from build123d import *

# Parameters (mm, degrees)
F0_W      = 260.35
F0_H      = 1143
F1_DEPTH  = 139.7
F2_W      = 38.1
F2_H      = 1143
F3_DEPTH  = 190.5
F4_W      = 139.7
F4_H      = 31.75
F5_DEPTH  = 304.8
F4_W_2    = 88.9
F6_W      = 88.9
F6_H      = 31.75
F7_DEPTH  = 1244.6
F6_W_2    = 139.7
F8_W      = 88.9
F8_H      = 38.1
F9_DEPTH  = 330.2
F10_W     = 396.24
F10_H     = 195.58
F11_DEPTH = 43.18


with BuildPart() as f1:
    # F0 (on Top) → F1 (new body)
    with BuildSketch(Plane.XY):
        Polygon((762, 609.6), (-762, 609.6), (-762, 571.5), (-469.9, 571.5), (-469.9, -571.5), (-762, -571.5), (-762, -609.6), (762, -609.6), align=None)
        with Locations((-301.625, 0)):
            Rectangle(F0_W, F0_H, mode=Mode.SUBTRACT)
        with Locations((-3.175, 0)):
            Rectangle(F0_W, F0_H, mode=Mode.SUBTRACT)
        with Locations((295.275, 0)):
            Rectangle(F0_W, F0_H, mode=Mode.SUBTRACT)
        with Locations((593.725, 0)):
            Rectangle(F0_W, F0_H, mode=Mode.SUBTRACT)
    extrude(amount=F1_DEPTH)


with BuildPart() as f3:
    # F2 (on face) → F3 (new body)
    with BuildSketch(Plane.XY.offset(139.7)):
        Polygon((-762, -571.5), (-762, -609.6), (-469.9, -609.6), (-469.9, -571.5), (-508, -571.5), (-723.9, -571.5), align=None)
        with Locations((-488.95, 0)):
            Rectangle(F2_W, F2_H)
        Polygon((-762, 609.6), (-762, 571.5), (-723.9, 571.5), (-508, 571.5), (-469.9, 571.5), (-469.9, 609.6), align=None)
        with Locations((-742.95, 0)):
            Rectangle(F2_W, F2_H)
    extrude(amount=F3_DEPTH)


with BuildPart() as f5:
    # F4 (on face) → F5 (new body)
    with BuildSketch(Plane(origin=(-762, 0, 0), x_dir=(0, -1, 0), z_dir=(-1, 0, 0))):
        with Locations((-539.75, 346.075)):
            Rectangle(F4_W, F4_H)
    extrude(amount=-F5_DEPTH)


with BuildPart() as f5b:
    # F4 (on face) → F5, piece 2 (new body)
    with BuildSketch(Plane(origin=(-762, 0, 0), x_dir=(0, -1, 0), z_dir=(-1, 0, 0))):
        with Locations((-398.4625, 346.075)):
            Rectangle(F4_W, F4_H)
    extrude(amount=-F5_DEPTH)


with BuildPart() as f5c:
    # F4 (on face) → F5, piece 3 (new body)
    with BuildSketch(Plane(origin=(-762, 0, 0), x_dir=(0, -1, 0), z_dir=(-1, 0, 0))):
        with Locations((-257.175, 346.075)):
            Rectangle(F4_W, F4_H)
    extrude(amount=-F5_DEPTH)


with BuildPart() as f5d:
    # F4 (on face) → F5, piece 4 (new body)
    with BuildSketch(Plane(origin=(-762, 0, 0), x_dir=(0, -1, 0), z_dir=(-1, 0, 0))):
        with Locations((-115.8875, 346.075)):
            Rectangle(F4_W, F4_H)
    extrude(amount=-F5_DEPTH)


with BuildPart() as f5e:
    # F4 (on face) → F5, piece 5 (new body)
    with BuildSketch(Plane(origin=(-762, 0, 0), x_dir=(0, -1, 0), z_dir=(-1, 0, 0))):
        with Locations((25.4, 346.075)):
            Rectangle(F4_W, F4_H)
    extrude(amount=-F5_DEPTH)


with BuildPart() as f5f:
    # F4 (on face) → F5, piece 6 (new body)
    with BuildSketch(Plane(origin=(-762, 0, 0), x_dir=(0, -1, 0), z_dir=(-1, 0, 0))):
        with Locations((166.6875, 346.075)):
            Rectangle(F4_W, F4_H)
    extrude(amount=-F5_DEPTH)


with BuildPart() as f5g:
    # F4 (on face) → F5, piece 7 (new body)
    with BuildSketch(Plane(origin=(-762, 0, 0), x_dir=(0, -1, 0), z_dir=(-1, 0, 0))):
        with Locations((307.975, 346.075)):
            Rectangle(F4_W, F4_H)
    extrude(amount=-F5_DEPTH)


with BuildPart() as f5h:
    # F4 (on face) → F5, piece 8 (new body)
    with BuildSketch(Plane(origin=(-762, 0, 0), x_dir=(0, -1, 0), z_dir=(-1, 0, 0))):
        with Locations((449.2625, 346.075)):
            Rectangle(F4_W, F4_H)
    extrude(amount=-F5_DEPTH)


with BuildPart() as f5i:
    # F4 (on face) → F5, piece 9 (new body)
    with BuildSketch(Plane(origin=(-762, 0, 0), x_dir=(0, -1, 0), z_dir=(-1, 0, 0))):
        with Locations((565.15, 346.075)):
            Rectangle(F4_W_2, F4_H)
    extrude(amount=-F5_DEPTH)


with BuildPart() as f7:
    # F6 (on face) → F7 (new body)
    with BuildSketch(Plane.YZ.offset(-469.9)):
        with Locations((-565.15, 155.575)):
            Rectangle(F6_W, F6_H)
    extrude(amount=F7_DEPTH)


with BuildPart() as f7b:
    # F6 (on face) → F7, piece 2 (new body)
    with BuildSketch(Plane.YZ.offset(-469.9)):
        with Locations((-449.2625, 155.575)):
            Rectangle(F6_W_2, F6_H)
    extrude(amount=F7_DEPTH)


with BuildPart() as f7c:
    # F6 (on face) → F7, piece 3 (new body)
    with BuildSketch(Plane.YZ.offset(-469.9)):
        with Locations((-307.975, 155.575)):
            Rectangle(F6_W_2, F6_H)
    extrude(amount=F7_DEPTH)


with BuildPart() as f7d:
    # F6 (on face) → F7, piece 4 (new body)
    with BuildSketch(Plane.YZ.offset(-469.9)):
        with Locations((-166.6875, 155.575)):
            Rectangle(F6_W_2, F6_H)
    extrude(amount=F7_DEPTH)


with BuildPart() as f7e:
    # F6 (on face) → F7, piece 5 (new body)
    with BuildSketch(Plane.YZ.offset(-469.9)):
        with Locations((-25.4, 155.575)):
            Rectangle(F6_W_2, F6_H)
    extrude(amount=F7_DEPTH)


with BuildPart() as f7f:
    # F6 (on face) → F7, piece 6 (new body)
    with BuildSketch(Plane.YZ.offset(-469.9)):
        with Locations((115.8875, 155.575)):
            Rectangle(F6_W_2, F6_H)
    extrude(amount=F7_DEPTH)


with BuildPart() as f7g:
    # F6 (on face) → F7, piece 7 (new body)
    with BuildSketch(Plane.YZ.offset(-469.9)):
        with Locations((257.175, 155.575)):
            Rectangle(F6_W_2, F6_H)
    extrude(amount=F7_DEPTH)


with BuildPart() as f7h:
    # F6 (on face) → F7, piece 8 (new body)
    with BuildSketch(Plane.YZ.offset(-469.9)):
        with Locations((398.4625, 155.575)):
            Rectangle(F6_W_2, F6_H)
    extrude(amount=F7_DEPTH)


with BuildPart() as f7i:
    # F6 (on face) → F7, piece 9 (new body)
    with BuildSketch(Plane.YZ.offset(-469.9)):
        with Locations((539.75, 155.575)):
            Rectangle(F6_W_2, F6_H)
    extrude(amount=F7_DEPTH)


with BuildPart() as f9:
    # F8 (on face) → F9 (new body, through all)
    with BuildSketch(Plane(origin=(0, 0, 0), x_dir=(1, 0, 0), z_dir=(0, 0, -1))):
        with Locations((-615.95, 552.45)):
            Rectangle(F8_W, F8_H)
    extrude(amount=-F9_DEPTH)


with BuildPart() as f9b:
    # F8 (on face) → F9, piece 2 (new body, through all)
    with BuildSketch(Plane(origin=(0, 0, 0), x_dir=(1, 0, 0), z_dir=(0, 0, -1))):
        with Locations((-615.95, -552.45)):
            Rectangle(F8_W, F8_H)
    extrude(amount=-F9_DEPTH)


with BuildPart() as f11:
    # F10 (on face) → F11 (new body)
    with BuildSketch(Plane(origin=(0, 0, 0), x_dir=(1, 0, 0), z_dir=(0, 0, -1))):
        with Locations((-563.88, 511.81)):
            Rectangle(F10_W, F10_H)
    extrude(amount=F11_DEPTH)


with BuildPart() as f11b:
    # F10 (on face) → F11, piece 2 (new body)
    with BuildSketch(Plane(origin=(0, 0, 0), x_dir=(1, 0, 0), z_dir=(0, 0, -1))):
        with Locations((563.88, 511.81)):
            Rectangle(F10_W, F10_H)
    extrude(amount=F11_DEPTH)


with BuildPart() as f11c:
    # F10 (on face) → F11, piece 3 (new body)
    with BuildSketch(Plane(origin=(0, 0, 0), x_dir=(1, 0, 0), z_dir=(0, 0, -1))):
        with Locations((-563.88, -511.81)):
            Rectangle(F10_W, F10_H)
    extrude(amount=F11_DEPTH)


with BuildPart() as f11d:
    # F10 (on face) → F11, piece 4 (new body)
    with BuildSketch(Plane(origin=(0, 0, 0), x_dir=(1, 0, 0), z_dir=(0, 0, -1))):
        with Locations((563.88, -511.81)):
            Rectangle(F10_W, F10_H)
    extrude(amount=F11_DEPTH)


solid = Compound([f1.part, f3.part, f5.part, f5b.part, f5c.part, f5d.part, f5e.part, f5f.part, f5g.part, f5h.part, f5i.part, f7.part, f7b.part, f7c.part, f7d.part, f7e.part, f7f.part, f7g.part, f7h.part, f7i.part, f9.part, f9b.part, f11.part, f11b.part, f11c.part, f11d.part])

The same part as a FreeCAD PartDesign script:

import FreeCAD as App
import Part
import Sketcher
Q = App.Units.Quantity


def add_polygon(sketch, points):
    """Adds a closed chain of lines whose ends are joined by coincident constraints."""
    first, n = sketch.GeometryCount, len(points)
    for a, b in zip(points, points[1:] + points[:1]):
        sketch.addGeometry(Part.LineSegment(App.Vector(*a, 0), App.Vector(*b, 0)), False)
    for i in range(n):
        sketch.addConstraint(Sketcher.Constraint("Coincident", first + i, 2, first + (i + 1) % n, 1))

doc = App.newDocument("Part")
body = doc.addObject("PartDesign::Body", "Body")

# Sketch on XY plane
sketch1 = doc.addObject("Sketcher::SketchObject", "Sketch")
body.addObject(sketch1)
sketch1.AttachmentSupport = (doc.XY_Plane, [""])
sketch1.MapMode = "FlatFace"
add_polygon(sketch1, [(762, 610), (-762, 610), (-762, 572), (-470, 572), (-470, -572), (-762, -572), (-762, -610), (762, -610)])  # lines 0-7
add_polygon(sketch1, [(-171, -572), (-432, -572), (-432, 572), (-171, 572)])  # lines 8-11
add_polygon(sketch1, [(127, -572), (-133, -572), (-133, 572), (127, 572)])  # lines 12-15
add_polygon(sketch1, [(425, -572), (165, -572), (165, 572), (425, 572)])  # lines 16-19
add_polygon(sketch1, [(724, -572), (464, -572), (464, 572), (724, 572)])  # lines 20-23
sketch1.addConstraint(Sketcher.Constraint("Horizontal", 0))
sketch1.addConstraint(Sketcher.Constraint("Vertical", 1))
sketch1.addConstraint(Sketcher.Constraint("Horizontal", 2))
sketch1.addConstraint(Sketcher.Constraint("Vertical", 3))
sketch1.addConstraint(Sketcher.Constraint("Horizontal", 4))
sketch1.addConstraint(Sketcher.Constraint("Vertical", 5))
sketch1.addConstraint(Sketcher.Constraint("Horizontal", 6))
sketch1.addConstraint(Sketcher.Constraint("Vertical", 7))
sketch1.addConstraint(Sketcher.Constraint("Horizontal", 8))
sketch1.addConstraint(Sketcher.Constraint("Vertical", 9))
sketch1.addConstraint(Sketcher.Constraint("Horizontal", 10))
sketch1.addConstraint(Sketcher.Constraint("Vertical", 11))
sketch1.addConstraint(Sketcher.Constraint("Horizontal", 12))
sketch1.addConstraint(Sketcher.Constraint("Vertical", 13))
sketch1.addConstraint(Sketcher.Constraint("Horizontal", 14))
sketch1.addConstraint(Sketcher.Constraint("Vertical", 15))
sketch1.addConstraint(Sketcher.Constraint("Horizontal", 16))
sketch1.addConstraint(Sketcher.Constraint("Vertical", 17))
sketch1.addConstraint(Sketcher.Constraint("Horizontal", 18))
sketch1.addConstraint(Sketcher.Constraint("Vertical", 19))
sketch1.addConstraint(Sketcher.Constraint("Horizontal", 20))
sketch1.addConstraint(Sketcher.Constraint("Vertical", 21))
sketch1.addConstraint(Sketcher.Constraint("Horizontal", 22))
sketch1.addConstraint(Sketcher.Constraint("Vertical", 23))
sketch1.addConstraint(Sketcher.Constraint("Symmetric", 0, 2, 6, 2, -1, 1))
sketch1.addConstraint(Sketcher.Constraint("Symmetric", 1, 2, 4, 2, -1))
sketch1.addConstraint(Sketcher.Constraint("Horizontal", 4, 2, 8, 2))
sketch1.addConstraint(Sketcher.Constraint("Horizontal", 2, 2, 9, 2))
sketch1.addConstraint(Sketcher.Constraint("Horizontal", 11, 2, 12, 2))
sketch1.addConstraint(Sketcher.Constraint("Horizontal", 10, 2, 13, 2))
sketch1.addConstraint(Sketcher.Constraint("Horizontal", 15, 2, 16, 2))
sketch1.addConstraint(Sketcher.Constraint("Horizontal", 14, 2, 17, 2))
sketch1.addConstraint(Sketcher.Constraint("Horizontal", 19, 2, 20, 2))
sketch1.addConstraint(Sketcher.Constraint("Horizontal", 18, 2, 21, 2))
sketch1.addConstraint(Sketcher.Constraint("Equal", 10, 12))
sketch1.addConstraint(Sketcher.Constraint("Equal", 14, 16))
sketch1.addConstraint(Sketcher.Constraint("Equal", 18, 20))
sketch1.addConstraint(Sketcher.Constraint("DistanceX", 0, 2, 0, 1, Q("60 in")))
sketch1.addConstraint(Sketcher.Constraint("DistanceY", 3, 2, 3, 1, Q("45 in")))
sketch1.addConstraint(Sketcher.Constraint("DistanceY", 7, 1, 7, 2, Q("48 in")))
sketch1.addConstraint(Sketcher.Constraint("DistanceX", 2, 1, 2, 2, Q("11.5 in")))
sketch1.addConstraint(Sketcher.Constraint("DistanceX", 8, 2, -1, 1, Q("17 in")))
sketch1.addConstraint(Sketcher.Constraint("DistanceX", -1, 1, 14, 2, Q("5 in")))
sketch1.addConstraint(Sketcher.Constraint("DistanceX", 13, 2, 18, 2, Q("22 in")))
sketch1.addConstraint(Sketcher.Constraint("DistanceX", 17, 2, 22, 2, Q("22 in")))
sketch1.addConstraint(Sketcher.Constraint("DistanceX", 8, 2, 8, 1, Q("10.25 in")))
pad1 = doc.addObject("PartDesign::Pad", "Pad")
body.addObject(pad1)
pad1.Profile = sketch1
pad1.Length = Q("5.5 in")
body2 = doc.addObject("PartDesign::Body", "Body001")

# Sketch on XY plane
sketch2 = doc.addObject("Sketcher::SketchObject", "Sketch001")
body2.addObject(sketch2)
sketch2.AttachmentSupport = (doc.getObject("XY_Plane001"), [""])
sketch2.MapMode = "FlatFace"
sketch2.AttachmentOffset = App.Placement(App.Vector(0, 0, 5.5 * 25.4), App.Rotation())
add_polygon(sketch2, [(-762, -610), (-470, -610), (-470, 610), (-762, 610)])  # lines 0-3
add_polygon(sketch2, [(-724, -572), (-724, 572), (-508, 572), (-508, -572)])  # lines 4-7
sketch2.addConstraint(Sketcher.Constraint("Horizontal", 0))
sketch2.addConstraint(Sketcher.Constraint("Vertical", 1))
sketch2.addConstraint(Sketcher.Constraint("Horizontal", 2))
sketch2.addConstraint(Sketcher.Constraint("Vertical", 3))
sketch2.addConstraint(Sketcher.Constraint("Vertical", 4))
sketch2.addConstraint(Sketcher.Constraint("Horizontal", 5))
sketch2.addConstraint(Sketcher.Constraint("Vertical", 6))
sketch2.addConstraint(Sketcher.Constraint("Horizontal", 7))
sketch2.addConstraint(Sketcher.Constraint("DistanceY", 1, 1, 1, 2, Q("48 in")))
sketch2.addConstraint(Sketcher.Constraint("DistanceY", 4, 1, 4, 2, Q("45 in")))
sketch2.addConstraint(Sketcher.Constraint("DistanceX", 0, 1, 0, 2, Q("11.5 in")))
sketch2.addConstraint(Sketcher.Constraint("DistanceX", 5, 1, 5, 2, Q("8.5 in")))
sketch2.addConstraint(Sketcher.Constraint("DistanceY", 0, 2, -1, 1, Q("24 in")))
sketch2.addConstraint(Sketcher.Constraint("DistanceX", 2, 2, -1, 1, Q("30 in")))
sketch2.addConstraint(Sketcher.Constraint("DistanceX", 5, 2, -1, 1, Q("20 in")))
sketch2.addConstraint(Sketcher.Constraint("DistanceY", -1, 1, 4, 2, Q("22.5 in")))
pad2 = doc.addObject("PartDesign::Pad", "Pad001")
body2.addObject(pad2)
pad2.Profile = sketch2
pad2.Length = Q("7.5 in")
body3 = doc.addObject("PartDesign::Body", "Body002")

# Sketch on YZ plane
sketch3 = doc.addObject("Sketcher::SketchObject", "Sketch002")
body3.addObject(sketch3)
sketch3.AttachmentSupport = (doc.getObject("YZ_Plane002"), [""])
sketch3.MapMode = "FlatFace"
sketch3.AttachmentOffset = App.Placement(App.Vector(0, 0, -30 * 25.4), App.Rotation())
add_polygon(sketch3, [(610, 362), (610, 330), (470, 330), (470, 362)])  # lines 0-3
sketch3.addConstraint(Sketcher.Constraint("Vertical", 0))
sketch3.addConstraint(Sketcher.Constraint("Horizontal", 1))
sketch3.addConstraint(Sketcher.Constraint("Vertical", 2))
sketch3.addConstraint(Sketcher.Constraint("Horizontal", 3))
sketch3.addConstraint(Sketcher.Constraint("DistanceX", 1, 2, 1, 1, Q("5.5 in")))
sketch3.addConstraint(Sketcher.Constraint("DistanceX", -1, 1, 0, 2, Q("24 in")))
sketch3.addConstraint(Sketcher.Constraint("DistanceY", -1, 1, 0, 2, Q("13 in")))
sketch3.addConstraint(Sketcher.Constraint("DistanceY", 0, 2, 0, 1, Q("1.25 in")))
pad3 = doc.addObject("PartDesign::Pad", "Pad002")
body3.addObject(pad3)
pad3.Profile = sketch3
pad3.Length = Q("12 in")
body4 = doc.addObject("PartDesign::Body", "Body003")

# Sketch on YZ plane
sketch4 = doc.addObject("Sketcher::SketchObject", "Sketch003")
body4.addObject(sketch4)
sketch4.AttachmentSupport = (doc.getObject("YZ_Plane003"), [""])
sketch4.MapMode = "FlatFace"
sketch4.AttachmentOffset = App.Placement(App.Vector(0, 0, -30 * 25.4), App.Rotation())
add_polygon(sketch4, [(468, 362), (468, 330), (329, 330), (329, 362)])  # lines 0-3
sketch4.addConstraint(Sketcher.Constraint("Vertical", 0))
sketch4.addConstraint(Sketcher.Constraint("Horizontal", 1))
sketch4.addConstraint(Sketcher.Constraint("Vertical", 2))
sketch4.addConstraint(Sketcher.Constraint("Horizontal", 3))
sketch4.addConstraint(Sketcher.Constraint("DistanceX", 1, 2, 1, 1, Q("5.5 in")))
sketch4.addConstraint(Sketcher.Constraint("DistanceY", -1, 1, 0, 2, Q("13 in")))
sketch4.addConstraint(Sketcher.Constraint("DistanceY", 0, 2, 0, 1, Q("1.25 in")))
sketch4.addConstraint(Sketcher.Constraint("DistanceX", -1, 1, 0, 2, Q("18.4375 in")))
pad4 = doc.addObject("PartDesign::Pad", "Pad003")
body4.addObject(pad4)
pad4.Profile = sketch4
pad4.Length = Q("12 in")
body5 = doc.addObject("PartDesign::Body", "Body004")

# Sketch on YZ plane
sketch5 = doc.addObject("Sketcher::SketchObject", "Sketch004")
body5.addObject(sketch5)
sketch5.AttachmentSupport = (doc.getObject("YZ_Plane004"), [""])
sketch5.MapMode = "FlatFace"
sketch5.AttachmentOffset = App.Placement(App.Vector(0, 0, -30 * 25.4), App.Rotation())
add_polygon(sketch5, [(327, 362), (327, 330), (187, 330), (187, 362)])  # lines 0-3
sketch5.addConstraint(Sketcher.Constraint("Vertical", 0))
sketch5.addConstraint(Sketcher.Constraint("Horizontal", 1))
sketch5.addConstraint(Sketcher.Constraint("Vertical", 2))
sketch5.addConstraint(Sketcher.Constraint("Horizontal", 3))
sketch5.addConstraint(Sketcher.Constraint("DistanceX", 1, 2, 1, 1, Q("5.5 in")))
sketch5.addConstraint(Sketcher.Constraint("DistanceY", -1, 1, 0, 2, Q("13 in")))
sketch5.addConstraint(Sketcher.Constraint("DistanceY", 0, 2, 0, 1, Q("1.25 in")))
sketch5.addConstraint(Sketcher.Constraint("DistanceX", -1, 1, 0, 2, Q("12.875 in")))
pad5 = doc.addObject("PartDesign::Pad", "Pad004")
body5.addObject(pad5)
pad5.Profile = sketch5
pad5.Length = Q("12 in")
body6 = doc.addObject("PartDesign::Body", "Body005")

# Sketch on YZ plane
sketch6 = doc.addObject("Sketcher::SketchObject", "Sketch005")
body6.addObject(sketch6)
sketch6.AttachmentSupport = (doc.getObject("YZ_Plane005"), [""])
sketch6.MapMode = "FlatFace"
sketch6.AttachmentOffset = App.Placement(App.Vector(0, 0, -30 * 25.4), App.Rotation())
add_polygon(sketch6, [(186, 362), (186, 330), (46, 330), (46, 362)])  # lines 0-3
sketch6.addConstraint(Sketcher.Constraint("Vertical", 0))
sketch6.addConstraint(Sketcher.Constraint("Horizontal", 1))
sketch6.addConstraint(Sketcher.Constraint("Vertical", 2))
sketch6.addConstraint(Sketcher.Constraint("Horizontal", 3))
sketch6.addConstraint(Sketcher.Constraint("DistanceX", 1, 2, 1, 1, Q("5.5 in")))
sketch6.addConstraint(Sketcher.Constraint("DistanceY", -1, 1, 0, 2, Q("13 in")))
sketch6.addConstraint(Sketcher.Constraint("DistanceY", 0, 2, 0, 1, Q("1.25 in")))
sketch6.addConstraint(Sketcher.Constraint("DistanceX", -1, 1, 0, 2, Q("7.3125 in")))
pad6 = doc.addObject("PartDesign::Pad", "Pad005")
body6.addObject(pad6)
pad6.Profile = sketch6
pad6.Length = Q("12 in")
body7 = doc.addObject("PartDesign::Body", "Body006")

# Sketch on YZ plane
sketch7 = doc.addObject("Sketcher::SketchObject", "Sketch006")
body7.addObject(sketch7)
sketch7.AttachmentSupport = (doc.getObject("YZ_Plane006"), [""])
sketch7.MapMode = "FlatFace"
sketch7.AttachmentOffset = App.Placement(App.Vector(0, 0, -30 * 25.4), App.Rotation())
add_polygon(sketch7, [(44, 362), (44, 330), (-95, 330), (-95, 362)])  # lines 0-3
sketch7.addConstraint(Sketcher.Constraint("Vertical", 0))
sketch7.addConstraint(Sketcher.Constraint("Horizontal", 1))
sketch7.addConstraint(Sketcher.Constraint("Vertical", 2))
sketch7.addConstraint(Sketcher.Constraint("Horizontal", 3))
sketch7.addConstraint(Sketcher.Constraint("DistanceX", 1, 2, 1, 1, Q("5.5 in")))
sketch7.addConstraint(Sketcher.Constraint("DistanceY", -1, 1, 0, 2, Q("13 in")))
sketch7.addConstraint(Sketcher.Constraint("DistanceY", 0, 2, 0, 1, Q("1.25 in")))
sketch7.addConstraint(Sketcher.Constraint("DistanceX", -1, 1, 0, 2, Q("1.75 in")))
pad7 = doc.addObject("PartDesign::Pad", "Pad006")
body7.addObject(pad7)
pad7.Profile = sketch7
pad7.Length = Q("12 in")
body8 = doc.addObject("PartDesign::Body", "Body007")

# Sketch on YZ plane
sketch8 = doc.addObject("Sketcher::SketchObject", "Sketch007")
body8.addObject(sketch8)
sketch8.AttachmentSupport = (doc.getObject("YZ_Plane007"), [""])
sketch8.MapMode = "FlatFace"
sketch8.AttachmentOffset = App.Placement(App.Vector(0, 0, -30 * 25.4), App.Rotation())
add_polygon(sketch8, [(-97, 362), (-97, 330), (-237, 330), (-237, 362)])  # lines 0-3
sketch8.addConstraint(Sketcher.Constraint("Vertical", 0))
sketch8.addConstraint(Sketcher.Constraint("Horizontal", 1))
sketch8.addConstraint(Sketcher.Constraint("Vertical", 2))
sketch8.addConstraint(Sketcher.Constraint("Horizontal", 3))
sketch8.addConstraint(Sketcher.Constraint("DistanceX", 1, 2, 1, 1, Q("5.5 in")))
sketch8.addConstraint(Sketcher.Constraint("DistanceY", -1, 1, 0, 2, Q("13 in")))
sketch8.addConstraint(Sketcher.Constraint("DistanceY", 0, 2, 0, 1, Q("1.25 in")))
sketch8.addConstraint(Sketcher.Constraint("DistanceX", 0, 2, -1, 1, Q("3.8125 in")))
pad8 = doc.addObject("PartDesign::Pad", "Pad007")
body8.addObject(pad8)
pad8.Profile = sketch8
pad8.Length = Q("12 in")
body9 = doc.addObject("PartDesign::Body", "Body008")

# Sketch on YZ plane
sketch9 = doc.addObject("Sketcher::SketchObject", "Sketch008")
body9.addObject(sketch9)
sketch9.AttachmentSupport = (doc.getObject("YZ_Plane008"), [""])
sketch9.MapMode = "FlatFace"
sketch9.AttachmentOffset = App.Placement(App.Vector(0, 0, -30 * 25.4), App.Rotation())
add_polygon(sketch9, [(-238, 362), (-238, 330), (-378, 330), (-378, 362)])  # lines 0-3
sketch9.addConstraint(Sketcher.Constraint("Vertical", 0))
sketch9.addConstraint(Sketcher.Constraint("Horizontal", 1))
sketch9.addConstraint(Sketcher.Constraint("Vertical", 2))
sketch9.addConstraint(Sketcher.Constraint("Horizontal", 3))
sketch9.addConstraint(Sketcher.Constraint("DistanceX", 1, 2, 1, 1, Q("5.5 in")))
sketch9.addConstraint(Sketcher.Constraint("DistanceY", -1, 1, 0, 2, Q("13 in")))
sketch9.addConstraint(Sketcher.Constraint("DistanceY", 0, 2, 0, 1, Q("1.25 in")))
sketch9.addConstraint(Sketcher.Constraint("DistanceX", 0, 2, -1, 1, Q("9.375 in")))
pad9 = doc.addObject("PartDesign::Pad", "Pad008")
body9.addObject(pad9)
pad9.Profile = sketch9
pad9.Length = Q("12 in")
body10 = doc.addObject("PartDesign::Body", "Body009")

# Sketch on YZ plane
sketch10 = doc.addObject("Sketcher::SketchObject", "Sketch009")
body10.addObject(sketch10)
sketch10.AttachmentSupport = (doc.getObject("YZ_Plane009"), [""])
sketch10.MapMode = "FlatFace"
sketch10.AttachmentOffset = App.Placement(App.Vector(0, 0, -30 * 25.4), App.Rotation())
add_polygon(sketch10, [(-379, 362), (-379, 330), (-519, 330), (-519, 362)])  # lines 0-3
sketch10.addConstraint(Sketcher.Constraint("Vertical", 0))
sketch10.addConstraint(Sketcher.Constraint("Horizontal", 1))
sketch10.addConstraint(Sketcher.Constraint("Vertical", 2))
sketch10.addConstraint(Sketcher.Constraint("Horizontal", 3))
sketch10.addConstraint(Sketcher.Constraint("DistanceX", 1, 2, 1, 1, Q("5.5 in")))
sketch10.addConstraint(Sketcher.Constraint("DistanceY", -1, 1, 0, 2, Q("13 in")))
sketch10.addConstraint(Sketcher.Constraint("DistanceY", 0, 2, 0, 1, Q("1.25 in")))
sketch10.addConstraint(Sketcher.Constraint("DistanceX", 0, 2, -1, 1, Q("14.9375 in")))
pad10 = doc.addObject("PartDesign::Pad", "Pad009")
body10.addObject(pad10)
pad10.Profile = sketch10
pad10.Length = Q("12 in")
body11 = doc.addObject("PartDesign::Body", "Body010")

# Sketch on YZ plane
sketch11 = doc.addObject("Sketcher::SketchObject", "Sketch010")
body11.addObject(sketch11)
sketch11.AttachmentSupport = (doc.getObject("YZ_Plane010"), [""])
sketch11.MapMode = "FlatFace"
sketch11.AttachmentOffset = App.Placement(App.Vector(0, 0, -30 * 25.4), App.Rotation())
add_polygon(sketch11, [(-521, 362), (-521, 330), (-610, 330), (-610, 362)])  # lines 0-3
sketch11.addConstraint(Sketcher.Constraint("Vertical", 0))
sketch11.addConstraint(Sketcher.Constraint("Horizontal", 1))
sketch11.addConstraint(Sketcher.Constraint("Vertical", 2))
sketch11.addConstraint(Sketcher.Constraint("Horizontal", 3))
sketch11.addConstraint(Sketcher.Constraint("DistanceX", 1, 2, 1, 1, Q("3.5 in")))
sketch11.addConstraint(Sketcher.Constraint("DistanceY", -1, 1, 0, 2, Q("13 in")))
sketch11.addConstraint(Sketcher.Constraint("DistanceX", 1, 2, -1, 1, Q("24 in")))
sketch11.addConstraint(Sketcher.Constraint("DistanceY", 0, 2, 0, 1, Q("1.25 in")))
pad11 = doc.addObject("PartDesign::Pad", "Pad010")
body11.addObject(pad11)
pad11.Profile = sketch11
pad11.Length = Q("12 in")
body12 = doc.addObject("PartDesign::Body", "Body011")

# Sketch on YZ plane
sketch12 = doc.addObject("Sketcher::SketchObject", "Sketch011")
body12.addObject(sketch12)
sketch12.AttachmentSupport = (doc.getObject("YZ_Plane011"), [""])
sketch12.MapMode = "FlatFace"
sketch12.AttachmentOffset = App.Placement(App.Vector(0, 0, -18.5 * 25.4), App.Rotation())
add_polygon(sketch12, [(-610, 171), (-610, 140), (-521, 140), (-521, 171)])  # lines 0-3
sketch12.addConstraint(Sketcher.Constraint("Vertical", 0))
sketch12.addConstraint(Sketcher.Constraint("Horizontal", 1))
sketch12.addConstraint(Sketcher.Constraint("Vertical", 2))
sketch12.addConstraint(Sketcher.Constraint("Horizontal", 3))
sketch12.addConstraint(Sketcher.Constraint("DistanceX", 1, 1, 1, 2, Q("3.5 in")))
sketch12.addConstraint(Sketcher.Constraint("DistanceX", 0, 2, -1, 1, Q("24 in")))
sketch12.addConstraint(Sketcher.Constraint("DistanceY", 0, 2, 0, 1, Q("1.25 in")))
sketch12.addConstraint(Sketcher.Constraint("DistanceY", -1, 1, 0, 2, Q("5.5 in")))
pad12 = doc.addObject("PartDesign::Pad", "Pad011")
body12.addObject(pad12)
pad12.Profile = sketch12
pad12.Length = Q("49 in")
body13 = doc.addObject("PartDesign::Body", "Body012")

# Sketch on YZ plane
sketch13 = doc.addObject("Sketcher::SketchObject", "Sketch012")
body13.addObject(sketch13)
sketch13.AttachmentSupport = (doc.getObject("YZ_Plane012"), [""])
sketch13.MapMode = "FlatFace"
sketch13.AttachmentOffset = App.Placement(App.Vector(0, 0, -18.5 * 25.4), App.Rotation())
add_polygon(sketch13, [(-519, 171), (-519, 140), (-379, 140), (-379, 171)])  # lines 0-3
sketch13.addConstraint(Sketcher.Constraint("Vertical", 0))
sketch13.addConstraint(Sketcher.Constraint("Horizontal", 1))
sketch13.addConstraint(Sketcher.Constraint("Vertical", 2))
sketch13.addConstraint(Sketcher.Constraint("Horizontal", 3))
sketch13.addConstraint(Sketcher.Constraint("DistanceX", 1, 1, 1, 2, Q("5.5 in")))
sketch13.addConstraint(Sketcher.Constraint("DistanceY", 0, 2, 0, 1, Q("1.25 in")))
sketch13.addConstraint(Sketcher.Constraint("DistanceY", -1, 1, 0, 2, Q("5.5 in")))
sketch13.addConstraint(Sketcher.Constraint("DistanceX", 0, 2, -1, 1, Q("20.4375 in")))
pad13 = doc.addObject("PartDesign::Pad", "Pad012")
body13.addObject(pad13)
pad13.Profile = sketch13
pad13.Length = Q("49 in")
body14 = doc.addObject("PartDesign::Body", "Body013")

# Sketch on YZ plane
sketch14 = doc.addObject("Sketcher::SketchObject", "Sketch013")
body14.addObject(sketch14)
sketch14.AttachmentSupport = (doc.getObject("YZ_Plane013"), [""])
sketch14.MapMode = "FlatFace"
sketch14.AttachmentOffset = App.Placement(App.Vector(0, 0, -18.5 * 25.4), App.Rotation())
add_polygon(sketch14, [(-378, 171), (-378, 140), (-238, 140), (-238, 171)])  # lines 0-3
sketch14.addConstraint(Sketcher.Constraint("Vertical", 0))
sketch14.addConstraint(Sketcher.Constraint("Horizontal", 1))
sketch14.addConstraint(Sketcher.Constraint("Vertical", 2))
sketch14.addConstraint(Sketcher.Constraint("Horizontal", 3))
sketch14.addConstraint(Sketcher.Constraint("DistanceX", 1, 1, 1, 2, Q("5.5 in")))
sketch14.addConstraint(Sketcher.Constraint("DistanceY", 0, 2, 0, 1, Q("1.25 in")))
sketch14.addConstraint(Sketcher.Constraint("DistanceY", -1, 1, 0, 2, Q("5.5 in")))
sketch14.addConstraint(Sketcher.Constraint("DistanceX", 0, 2, -1, 1, Q("14.875 in")))
pad14 = doc.addObject("PartDesign::Pad", "Pad013")
body14.addObject(pad14)
pad14.Profile = sketch14
pad14.Length = Q("49 in")
body15 = doc.addObject("PartDesign::Body", "Body014")

# Sketch on YZ plane
sketch15 = doc.addObject("Sketcher::SketchObject", "Sketch014")
body15.addObject(sketch15)
sketch15.AttachmentSupport = (doc.getObject("YZ_Plane014"), [""])
sketch15.MapMode = "FlatFace"
sketch15.AttachmentOffset = App.Placement(App.Vector(0, 0, -18.5 * 25.4), App.Rotation())
add_polygon(sketch15, [(-237, 171), (-237, 140), (-97, 140), (-97, 171)])  # lines 0-3
sketch15.addConstraint(Sketcher.Constraint("Vertical", 0))
sketch15.addConstraint(Sketcher.Constraint("Horizontal", 1))
sketch15.addConstraint(Sketcher.Constraint("Vertical", 2))
sketch15.addConstraint(Sketcher.Constraint("Horizontal", 3))
sketch15.addConstraint(Sketcher.Constraint("DistanceX", 1, 1, 1, 2, Q("5.5 in")))
sketch15.addConstraint(Sketcher.Constraint("DistanceY", 0, 2, 0, 1, Q("1.25 in")))
sketch15.addConstraint(Sketcher.Constraint("DistanceY", -1, 1, 0, 2, Q("5.5 in")))
sketch15.addConstraint(Sketcher.Constraint("DistanceX", 0, 2, -1, 1, Q("9.3125 in")))
pad15 = doc.addObject("PartDesign::Pad", "Pad014")
body15.addObject(pad15)
pad15.Profile = sketch15
pad15.Length = Q("49 in")
body16 = doc.addObject("PartDesign::Body", "Body015")

# Sketch on YZ plane
sketch16 = doc.addObject("Sketcher::SketchObject", "Sketch015")
body16.addObject(sketch16)
sketch16.AttachmentSupport = (doc.getObject("YZ_Plane015"), [""])
sketch16.MapMode = "FlatFace"
sketch16.AttachmentOffset = App.Placement(App.Vector(0, 0, -18.5 * 25.4), App.Rotation())
add_polygon(sketch16, [(-95, 171), (-95, 140), (44, 140), (44, 171)])  # lines 0-3
sketch16.addConstraint(Sketcher.Constraint("Vertical", 0))
sketch16.addConstraint(Sketcher.Constraint("Horizontal", 1))
sketch16.addConstraint(Sketcher.Constraint("Vertical", 2))
sketch16.addConstraint(Sketcher.Constraint("Horizontal", 3))
sketch16.addConstraint(Sketcher.Constraint("DistanceX", 1, 1, 1, 2, Q("5.5 in")))
sketch16.addConstraint(Sketcher.Constraint("DistanceY", 0, 2, 0, 1, Q("1.25 in")))
sketch16.addConstraint(Sketcher.Constraint("DistanceY", -1, 1, 0, 2, Q("5.5 in")))
sketch16.addConstraint(Sketcher.Constraint("DistanceX", 0, 2, -1, 1, Q("3.75 in")))
pad16 = doc.addObject("PartDesign::Pad", "Pad015")
body16.addObject(pad16)
pad16.Profile = sketch16
pad16.Length = Q("49 in")
body17 = doc.addObject("PartDesign::Body", "Body016")

# Sketch on YZ plane
sketch17 = doc.addObject("Sketcher::SketchObject", "Sketch016")
body17.addObject(sketch17)
sketch17.AttachmentSupport = (doc.getObject("YZ_Plane016"), [""])
sketch17.MapMode = "FlatFace"
sketch17.AttachmentOffset = App.Placement(App.Vector(0, 0, -18.5 * 25.4), App.Rotation())
add_polygon(sketch17, [(46, 171), (46, 140), (186, 140), (186, 171)])  # lines 0-3
sketch17.addConstraint(Sketcher.Constraint("Vertical", 0))
sketch17.addConstraint(Sketcher.Constraint("Horizontal", 1))
sketch17.addConstraint(Sketcher.Constraint("Vertical", 2))
sketch17.addConstraint(Sketcher.Constraint("Horizontal", 3))
sketch17.addConstraint(Sketcher.Constraint("DistanceX", 1, 1, 1, 2, Q("5.5 in")))
sketch17.addConstraint(Sketcher.Constraint("DistanceY", 0, 2, 0, 1, Q("1.25 in")))
sketch17.addConstraint(Sketcher.Constraint("DistanceY", -1, 1, 0, 2, Q("5.5 in")))
sketch17.addConstraint(Sketcher.Constraint("DistanceX", -1, 1, 0, 2, Q("1.8125 in")))
pad17 = doc.addObject("PartDesign::Pad", "Pad016")
body17.addObject(pad17)
pad17.Profile = sketch17
pad17.Length = Q("49 in")
body18 = doc.addObject("PartDesign::Body", "Body017")

# Sketch on YZ plane
sketch18 = doc.addObject("Sketcher::SketchObject", "Sketch017")
body18.addObject(sketch18)
sketch18.AttachmentSupport = (doc.getObject("YZ_Plane017"), [""])
sketch18.MapMode = "FlatFace"
sketch18.AttachmentOffset = App.Placement(App.Vector(0, 0, -18.5 * 25.4), App.Rotation())
add_polygon(sketch18, [(187, 171), (187, 140), (327, 140), (327, 171)])  # lines 0-3
sketch18.addConstraint(Sketcher.Constraint("Vertical", 0))
sketch18.addConstraint(Sketcher.Constraint("Horizontal", 1))
sketch18.addConstraint(Sketcher.Constraint("Vertical", 2))
sketch18.addConstraint(Sketcher.Constraint("Horizontal", 3))
sketch18.addConstraint(Sketcher.Constraint("DistanceX", 1, 1, 1, 2, Q("5.5 in")))
sketch18.addConstraint(Sketcher.Constraint("DistanceY", 0, 2, 0, 1, Q("1.25 in")))
sketch18.addConstraint(Sketcher.Constraint("DistanceY", -1, 1, 0, 2, Q("5.5 in")))
sketch18.addConstraint(Sketcher.Constraint("DistanceX", -1, 1, 0, 2, Q("7.375 in")))
pad18 = doc.addObject("PartDesign::Pad", "Pad017")
body18.addObject(pad18)
pad18.Profile = sketch18
pad18.Length = Q("49 in")
body19 = doc.addObject("PartDesign::Body", "Body018")

# Sketch on YZ plane
sketch19 = doc.addObject("Sketcher::SketchObject", "Sketch018")
body19.addObject(sketch19)
sketch19.AttachmentSupport = (doc.getObject("YZ_Plane018"), [""])
sketch19.MapMode = "FlatFace"
sketch19.AttachmentOffset = App.Placement(App.Vector(0, 0, -18.5 * 25.4), App.Rotation())
add_polygon(sketch19, [(329, 171), (329, 140), (468, 140), (468, 171)])  # lines 0-3
sketch19.addConstraint(Sketcher.Constraint("Vertical", 0))
sketch19.addConstraint(Sketcher.Constraint("Horizontal", 1))
sketch19.addConstraint(Sketcher.Constraint("Vertical", 2))
sketch19.addConstraint(Sketcher.Constraint("Horizontal", 3))
sketch19.addConstraint(Sketcher.Constraint("DistanceX", 1, 1, 1, 2, Q("5.5 in")))
sketch19.addConstraint(Sketcher.Constraint("DistanceY", 0, 2, 0, 1, Q("1.25 in")))
sketch19.addConstraint(Sketcher.Constraint("DistanceY", -1, 1, 0, 2, Q("5.5 in")))
sketch19.addConstraint(Sketcher.Constraint("DistanceX", -1, 1, 0, 2, Q("12.9375 in")))
pad19 = doc.addObject("PartDesign::Pad", "Pad018")
body19.addObject(pad19)
pad19.Profile = sketch19
pad19.Length = Q("49 in")
body20 = doc.addObject("PartDesign::Body", "Body019")

# Sketch on YZ plane
sketch20 = doc.addObject("Sketcher::SketchObject", "Sketch019")
body20.addObject(sketch20)
sketch20.AttachmentSupport = (doc.getObject("YZ_Plane019"), [""])
sketch20.MapMode = "FlatFace"
sketch20.AttachmentOffset = App.Placement(App.Vector(0, 0, -18.5 * 25.4), App.Rotation())
add_polygon(sketch20, [(470, 171), (470, 140), (610, 140), (610, 171)])  # lines 0-3
sketch20.addConstraint(Sketcher.Constraint("Vertical", 0))
sketch20.addConstraint(Sketcher.Constraint("Horizontal", 1))
sketch20.addConstraint(Sketcher.Constraint("Vertical", 2))
sketch20.addConstraint(Sketcher.Constraint("Horizontal", 3))
sketch20.addConstraint(Sketcher.Constraint("DistanceX", 1, 1, 1, 2, Q("5.5 in")))
sketch20.addConstraint(Sketcher.Constraint("DistanceX", -1, 1, 1, 2, Q("24 in")))
sketch20.addConstraint(Sketcher.Constraint("DistanceY", 0, 2, 0, 1, Q("1.25 in")))
sketch20.addConstraint(Sketcher.Constraint("DistanceY", -1, 1, 0, 2, Q("5.5 in")))
pad20 = doc.addObject("PartDesign::Pad", "Pad019")
body20.addObject(pad20)
pad20.Profile = sketch20
pad20.Length = Q("49 in")
body21 = doc.addObject("PartDesign::Body", "Body020")

# Sketch on XY plane
sketch21 = doc.addObject("Sketcher::SketchObject", "Sketch020")
body21.addObject(sketch21)
sketch21.AttachmentSupport = (doc.getObject("XY_Plane020"), [""])
sketch21.MapMode = "FlatFace"
add_polygon(sketch21, [(-660, -572), (-660, -533), (-572, -533), (-572, -572)])  # lines 0-3
sketch21.addConstraint(Sketcher.Constraint("Vertical", 0))
sketch21.addConstraint(Sketcher.Constraint("Horizontal", 1))
sketch21.addConstraint(Sketcher.Constraint("Vertical", 2))
sketch21.addConstraint(Sketcher.Constraint("Horizontal", 3))
sketch21.addConstraint(Sketcher.Constraint("DistanceX", 1, 1, 1, 2, Q("3.5 in")))
sketch21.addConstraint(Sketcher.Constraint("DistanceY", 0, 1, 0, 2, Q("1.5 in")))
sketch21.addConstraint(Sketcher.Constraint("DistanceX", 0, 2, -1, 1, Q("26 in")))
sketch21.addConstraint(Sketcher.Constraint("DistanceY", 0, 2, -1, 1, Q("21 in")))
pad21 = doc.addObject("PartDesign::Pad", "Pad020")
body21.addObject(pad21)
pad21.Profile = sketch21
pad21.Length = Q("13 in")
body22 = doc.addObject("PartDesign::Body", "Body021")

# Sketch on XY plane
sketch22 = doc.addObject("Sketcher::SketchObject", "Sketch021")
body22.addObject(sketch22)
sketch22.AttachmentSupport = (doc.getObject("XY_Plane021"), [""])
sketch22.MapMode = "FlatFace"
add_polygon(sketch22, [(-660, 533), (-660, 572), (-572, 572), (-572, 533)])  # lines 0-3
sketch22.addConstraint(Sketcher.Constraint("Vertical", 0))
sketch22.addConstraint(Sketcher.Constraint("Horizontal", 1))
sketch22.addConstraint(Sketcher.Constraint("Vertical", 2))
sketch22.addConstraint(Sketcher.Constraint("Horizontal", 3))
sketch22.addConstraint(Sketcher.Constraint("DistanceX", 1, 1, 1, 2, Q("3.5 in")))
sketch22.addConstraint(Sketcher.Constraint("DistanceY", 0, 1, 0, 2, Q("1.5 in")))
sketch22.addConstraint(Sketcher.Constraint("DistanceX", 0, 2, -1, 1, Q("26 in")))
sketch22.addConstraint(Sketcher.Constraint("DistanceY", -1, 1, 2, 2, Q("21 in")))
pad22 = doc.addObject("PartDesign::Pad", "Pad021")
body22.addObject(pad22)
pad22.Profile = sketch22
pad22.Length = Q("13 in")
body23 = doc.addObject("PartDesign::Body", "Body022")

# Sketch on XY plane
sketch23 = doc.addObject("Sketcher::SketchObject", "Sketch022")
body23.addObject(sketch23)
sketch23.AttachmentSupport = (doc.getObject("XY_Plane022"), [""])
sketch23.MapMode = "FlatFace"
add_polygon(sketch23, [(-762, -610), (-762, -414), (-366, -414), (-366, -610)])  # lines 0-3
sketch23.addConstraint(Sketcher.Constraint("Vertical", 0))
sketch23.addConstraint(Sketcher.Constraint("Horizontal", 1))
sketch23.addConstraint(Sketcher.Constraint("Vertical", 2))
sketch23.addConstraint(Sketcher.Constraint("Horizontal", 3))
sketch23.addConstraint(Sketcher.Constraint("DistanceX", 1, 1, 1, 2, Q("15.6 in")))
sketch23.addConstraint(Sketcher.Constraint("DistanceY", 0, 1, 0, 2, Q("7.7 in")))
sketch23.addConstraint(Sketcher.Constraint("DistanceX", 0, 2, -1, 1, Q("30 in")))
sketch23.addConstraint(Sketcher.Constraint("DistanceY", 2, 2, -1, 1, Q("24 in")))
pad23 = doc.addObject("PartDesign::Pad", "Pad022")
body23.addObject(pad23)
pad23.Profile = sketch23
pad23.Length = Q("1.7 in")
pad23.Reversed = True
body24 = doc.addObject("PartDesign::Body", "Body023")

# Sketch on XY plane
sketch24 = doc.addObject("Sketcher::SketchObject", "Sketch023")
body24.addObject(sketch24)
sketch24.AttachmentSupport = (doc.getObject("XY_Plane023"), [""])
sketch24.MapMode = "FlatFace"
add_polygon(sketch24, [(366, -610), (366, -414), (762, -414), (762, -610)])  # lines 0-3
sketch24.addConstraint(Sketcher.Constraint("Vertical", 0))
sketch24.addConstraint(Sketcher.Constraint("Horizontal", 1))
sketch24.addConstraint(Sketcher.Constraint("Vertical", 2))
sketch24.addConstraint(Sketcher.Constraint("Horizontal", 3))
sketch24.addConstraint(Sketcher.Constraint("DistanceX", 1, 1, 1, 2, Q("15.6 in")))
sketch24.addConstraint(Sketcher.Constraint("DistanceY", 0, 1, 0, 2, Q("7.7 in")))
sketch24.addConstraint(Sketcher.Constraint("DistanceX", -1, 1, 1, 2, Q("30 in")))
sketch24.addConstraint(Sketcher.Constraint("DistanceY", 2, 2, -1, 1, Q("24 in")))
pad24 = doc.addObject("PartDesign::Pad", "Pad023")
body24.addObject(pad24)
pad24.Profile = sketch24
pad24.Length = Q("1.7 in")
pad24.Reversed = True
body25 = doc.addObject("PartDesign::Body", "Body024")

# Sketch on XY plane
sketch25 = doc.addObject("Sketcher::SketchObject", "Sketch024")
body25.addObject(sketch25)
sketch25.AttachmentSupport = (doc.getObject("XY_Plane024"), [""])
sketch25.MapMode = "FlatFace"
add_polygon(sketch25, [(-762, 414), (-762, 610), (-366, 610), (-366, 414)])  # lines 0-3
sketch25.addConstraint(Sketcher.Constraint("Vertical", 0))
sketch25.addConstraint(Sketcher.Constraint("Horizontal", 1))
sketch25.addConstraint(Sketcher.Constraint("Vertical", 2))
sketch25.addConstraint(Sketcher.Constraint("Horizontal", 3))
sketch25.addConstraint(Sketcher.Constraint("DistanceX", 1, 1, 1, 2, Q("15.6 in")))
sketch25.addConstraint(Sketcher.Constraint("DistanceY", 0, 1, 0, 2, Q("7.7 in")))
sketch25.addConstraint(Sketcher.Constraint("DistanceX", 0, 2, -1, 1, Q("30 in")))
sketch25.addConstraint(Sketcher.Constraint("DistanceY", -1, 1, 0, 2, Q("24 in")))
pad25 = doc.addObject("PartDesign::Pad", "Pad024")
body25.addObject(pad25)
pad25.Profile = sketch25
pad25.Length = Q("1.7 in")
pad25.Reversed = True
body26 = doc.addObject("PartDesign::Body", "Body025")

# Sketch on XY plane
sketch26 = doc.addObject("Sketcher::SketchObject", "Sketch025")
body26.addObject(sketch26)
sketch26.AttachmentSupport = (doc.getObject("XY_Plane025"), [""])
sketch26.MapMode = "FlatFace"
add_polygon(sketch26, [(366, 414), (366, 610), (762, 610), (762, 414)])  # lines 0-3
sketch26.addConstraint(Sketcher.Constraint("Vertical", 0))
sketch26.addConstraint(Sketcher.Constraint("Horizontal", 1))
sketch26.addConstraint(Sketcher.Constraint("Vertical", 2))
sketch26.addConstraint(Sketcher.Constraint("Horizontal", 3))
sketch26.addConstraint(Sketcher.Constraint("DistanceX", 1, 1, 1, 2, Q("15.6 in")))
sketch26.addConstraint(Sketcher.Constraint("DistanceY", 0, 1, 0, 2, Q("7.7 in")))
sketch26.addConstraint(Sketcher.Constraint("DistanceY", -1, 1, 0, 2, Q("24 in")))
sketch26.addConstraint(Sketcher.Constraint("DistanceX", -1, 1, 1, 2, Q("30 in")))
pad26 = doc.addObject("PartDesign::Pad", "Pad025")
body26.addObject(pad26)
pad26.Profile = sketch26
pad26.Length = Q("1.7 in")
pad26.Reversed = True

doc.recompute()
